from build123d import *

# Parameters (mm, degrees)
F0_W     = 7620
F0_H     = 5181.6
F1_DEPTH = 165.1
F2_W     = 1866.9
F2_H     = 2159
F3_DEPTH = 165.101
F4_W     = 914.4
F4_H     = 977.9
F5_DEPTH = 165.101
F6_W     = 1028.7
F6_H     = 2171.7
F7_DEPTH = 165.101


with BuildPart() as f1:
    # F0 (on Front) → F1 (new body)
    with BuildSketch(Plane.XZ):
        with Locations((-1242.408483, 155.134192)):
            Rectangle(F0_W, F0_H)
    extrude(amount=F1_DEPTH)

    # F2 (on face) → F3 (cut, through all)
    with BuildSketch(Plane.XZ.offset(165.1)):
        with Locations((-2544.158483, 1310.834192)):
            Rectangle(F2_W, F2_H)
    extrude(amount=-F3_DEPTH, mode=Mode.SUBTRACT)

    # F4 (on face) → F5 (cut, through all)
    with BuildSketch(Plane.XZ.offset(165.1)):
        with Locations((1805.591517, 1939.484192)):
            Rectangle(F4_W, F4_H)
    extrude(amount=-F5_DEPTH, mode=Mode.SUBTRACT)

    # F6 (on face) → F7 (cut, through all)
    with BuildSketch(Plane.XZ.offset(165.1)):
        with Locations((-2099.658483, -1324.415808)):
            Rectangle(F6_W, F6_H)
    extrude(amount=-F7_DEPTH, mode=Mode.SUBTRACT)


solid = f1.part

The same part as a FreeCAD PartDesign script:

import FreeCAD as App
import Part
import Sketcher
Q = App.Units.Quantity


def add_polygon(sketch, points):
    """Adds a closed chain of lines whose ends are joined by coincident constraints."""
    first, n = sketch.GeometryCount, len(points)
    for a, b in zip(points, points[1:] + points[:1]):
        sketch.addGeometry(Part.LineSegment(App.Vector(*a, 0), App.Vector(*b, 0)), False)
    for i in range(n):
        sketch.addConstraint(Sketcher.Constraint("Coincident", first + i, 2, first + (i + 1) % n, 1))

doc = App.newDocument("Part")
body = doc.addObject("PartDesign::Body", "Body")

# Sketch on XZ plane
sketch1 = body.newObject("Sketcher::SketchObject", "Sketch")
sketch1.AttachmentSupport = (doc.getObject("XZ_Plane"), [""])
sketch1.MapMode = "FlatFace"
add_polygon(sketch1, [(-5052.408483, 2745.934192), (-5052.408483, -2435.665808), (2567.591517, -2435.665808), (2567.591517, 2745.934192)])  # lines 0-3
sketch1.addConstraint([
    Sketcher.Constraint("Vertical", 0),
    Sketcher.Constraint("Horizontal", 1),
    Sketcher.Constraint("Vertical", 2),
    Sketcher.Constraint("Horizontal", 3),
    Sketcher.Constraint("DistanceX", 1, 1, 1, 2, Q("300 in")),
    Sketcher.Constraint("DistanceY", 0, 2, 0, 1, Q("204 in")),
    Sketcher.Constraint("DistanceY", 0, 2, -1, 1, 2435.665808),
    Sketcher.Constraint("DistanceX", 0, 2, -1, 1, 5052.408483),
])
pad1 = body.newObject("PartDesign::Pad", "Pad")
pad1.Profile = sketch1
pad1.Length = Q("6.5 in")

# Sketch on XZ plane
sketch2 = body.newObject("Sketcher::SketchObject", "Sketch001")
sketch2.AttachmentSupport = (doc.getObject("XZ_Plane"), [""])
sketch2.MapMode = "FlatFace"
sketch2.AttachmentOffset = App.Placement(App.Vector(0, 0, 6.5 * 25.4), App.Rotation())
add_polygon(sketch2, [(-3477.608483, 2390.334192), (-3477.608483, 231.334192), (-1610.708483, 231.334192), (-1610.708483, 2390.334192)])  # lines 0-3
sketch2.addConstraint([
    Sketcher.Constraint("Vertical", 0),
    Sketcher.Constraint("Horizontal", 1),
    Sketcher.Constraint("Vertical", 2),
    Sketcher.Constraint("Horizontal", 3),
    Sketcher.Constraint("DistanceY", 0, 2, 0, 1, Q("85 in")),
    Sketcher.Constraint("DistanceX", 1, 1, 1, 2, Q("73.5 in")),
    Sketcher.Constraint("DistanceY", -1, 1, 0, 2, 231.334192),
    Sketcher.Constraint("DistanceX", 0, 2, -1, 1, 3477.608483),
])
pocket1 = body.newObject("PartDesign::Pocket", "Pocket")
pocket1.Profile = sketch2
pocket1.Type = "ThroughAll"

# Sketch on XZ plane
sketch3 = body.newObject("Sketcher::SketchObject", "Sketch002")
sketch3.AttachmentSupport = (doc.getObject("XZ_Plane"), [""])
sketch3.MapMode = "FlatFace"
sketch3.AttachmentOffset = App.Placement(App.Vector(0, 0, 6.5 * 25.4), App.Rotation())
add_polygon(sketch3, [(1348.391517, 2428.434192), (1348.391517, 1450.534192), (2262.791517, 1450.534192), (2262.791517, 2428.434192)])  # lines 0-3
sketch3.addConstraint([
    Sketcher.Constraint("Vertical", 0),
    Sketcher.Constraint("Horizontal", 1),
    Sketcher.Constraint("Vertical", 2),
    Sketcher.Constraint("Horizontal", 3),
    Sketcher.Constraint("DistanceX", 1, 1, 1, 2, Q("36 in")),
    Sketcher.Constraint("DistanceY", 0, 2, 0, 1, Q("38.5 in")),
    Sketcher.Constraint("DistanceY", -1, 1, 0, 2, 1450.534192),
    Sketcher.Constraint("DistanceX", -1, 1, 0, 2, 1348.391517),
])
pocket2 = body.newObject("PartDesign::Pocket", "Pocket001")
pocket2.Profile = sketch3
pocket2.Type = "ThroughAll"

# Sketch on XZ plane
sketch4 = body.newObject("Sketcher::SketchObject", "Sketch003")
sketch4.AttachmentSupport = (doc.getObject("XZ_Plane"), [""])
sketch4.MapMode = "FlatFace"
sketch4.AttachmentOffset = App.Placement(App.Vector(0, 0, 6.5 * 25.4), App.Rotation())
add_polygon(sketch4, [(-2614.008483, -238.565808), (-2614.008483, -2410.265808), (-1585.308483, -2410.265808), (-1585.308483, -238.565808)])  # lines 0-3
sketch4.addConstraint([
    Sketcher.Constraint("Vertical", 0),
    Sketcher.Constraint("Horizontal", 1),
    Sketcher.Constraint("Vertical", 2),
    Sketcher.Constraint("Horizontal", 3),
    Sketcher.Constraint("DistanceX", 1, 1, 1, 2, Q("40.5 in")),
    Sketcher.Constraint("DistanceY", 0, 2, 0, 1, Q("85.5 in")),
    Sketcher.Constraint("DistanceY", 0, 2, -1, 1, 2410.265808),
    Sketcher.Constraint("DistanceX", 0, 2, -1, 1, 2614.008483),
])
pocket3 = body.newObject("PartDesign::Pocket", "Pocket002")
pocket3.Profile = sketch4
pocket3.Type = "ThroughAll"

doc.recompute()
